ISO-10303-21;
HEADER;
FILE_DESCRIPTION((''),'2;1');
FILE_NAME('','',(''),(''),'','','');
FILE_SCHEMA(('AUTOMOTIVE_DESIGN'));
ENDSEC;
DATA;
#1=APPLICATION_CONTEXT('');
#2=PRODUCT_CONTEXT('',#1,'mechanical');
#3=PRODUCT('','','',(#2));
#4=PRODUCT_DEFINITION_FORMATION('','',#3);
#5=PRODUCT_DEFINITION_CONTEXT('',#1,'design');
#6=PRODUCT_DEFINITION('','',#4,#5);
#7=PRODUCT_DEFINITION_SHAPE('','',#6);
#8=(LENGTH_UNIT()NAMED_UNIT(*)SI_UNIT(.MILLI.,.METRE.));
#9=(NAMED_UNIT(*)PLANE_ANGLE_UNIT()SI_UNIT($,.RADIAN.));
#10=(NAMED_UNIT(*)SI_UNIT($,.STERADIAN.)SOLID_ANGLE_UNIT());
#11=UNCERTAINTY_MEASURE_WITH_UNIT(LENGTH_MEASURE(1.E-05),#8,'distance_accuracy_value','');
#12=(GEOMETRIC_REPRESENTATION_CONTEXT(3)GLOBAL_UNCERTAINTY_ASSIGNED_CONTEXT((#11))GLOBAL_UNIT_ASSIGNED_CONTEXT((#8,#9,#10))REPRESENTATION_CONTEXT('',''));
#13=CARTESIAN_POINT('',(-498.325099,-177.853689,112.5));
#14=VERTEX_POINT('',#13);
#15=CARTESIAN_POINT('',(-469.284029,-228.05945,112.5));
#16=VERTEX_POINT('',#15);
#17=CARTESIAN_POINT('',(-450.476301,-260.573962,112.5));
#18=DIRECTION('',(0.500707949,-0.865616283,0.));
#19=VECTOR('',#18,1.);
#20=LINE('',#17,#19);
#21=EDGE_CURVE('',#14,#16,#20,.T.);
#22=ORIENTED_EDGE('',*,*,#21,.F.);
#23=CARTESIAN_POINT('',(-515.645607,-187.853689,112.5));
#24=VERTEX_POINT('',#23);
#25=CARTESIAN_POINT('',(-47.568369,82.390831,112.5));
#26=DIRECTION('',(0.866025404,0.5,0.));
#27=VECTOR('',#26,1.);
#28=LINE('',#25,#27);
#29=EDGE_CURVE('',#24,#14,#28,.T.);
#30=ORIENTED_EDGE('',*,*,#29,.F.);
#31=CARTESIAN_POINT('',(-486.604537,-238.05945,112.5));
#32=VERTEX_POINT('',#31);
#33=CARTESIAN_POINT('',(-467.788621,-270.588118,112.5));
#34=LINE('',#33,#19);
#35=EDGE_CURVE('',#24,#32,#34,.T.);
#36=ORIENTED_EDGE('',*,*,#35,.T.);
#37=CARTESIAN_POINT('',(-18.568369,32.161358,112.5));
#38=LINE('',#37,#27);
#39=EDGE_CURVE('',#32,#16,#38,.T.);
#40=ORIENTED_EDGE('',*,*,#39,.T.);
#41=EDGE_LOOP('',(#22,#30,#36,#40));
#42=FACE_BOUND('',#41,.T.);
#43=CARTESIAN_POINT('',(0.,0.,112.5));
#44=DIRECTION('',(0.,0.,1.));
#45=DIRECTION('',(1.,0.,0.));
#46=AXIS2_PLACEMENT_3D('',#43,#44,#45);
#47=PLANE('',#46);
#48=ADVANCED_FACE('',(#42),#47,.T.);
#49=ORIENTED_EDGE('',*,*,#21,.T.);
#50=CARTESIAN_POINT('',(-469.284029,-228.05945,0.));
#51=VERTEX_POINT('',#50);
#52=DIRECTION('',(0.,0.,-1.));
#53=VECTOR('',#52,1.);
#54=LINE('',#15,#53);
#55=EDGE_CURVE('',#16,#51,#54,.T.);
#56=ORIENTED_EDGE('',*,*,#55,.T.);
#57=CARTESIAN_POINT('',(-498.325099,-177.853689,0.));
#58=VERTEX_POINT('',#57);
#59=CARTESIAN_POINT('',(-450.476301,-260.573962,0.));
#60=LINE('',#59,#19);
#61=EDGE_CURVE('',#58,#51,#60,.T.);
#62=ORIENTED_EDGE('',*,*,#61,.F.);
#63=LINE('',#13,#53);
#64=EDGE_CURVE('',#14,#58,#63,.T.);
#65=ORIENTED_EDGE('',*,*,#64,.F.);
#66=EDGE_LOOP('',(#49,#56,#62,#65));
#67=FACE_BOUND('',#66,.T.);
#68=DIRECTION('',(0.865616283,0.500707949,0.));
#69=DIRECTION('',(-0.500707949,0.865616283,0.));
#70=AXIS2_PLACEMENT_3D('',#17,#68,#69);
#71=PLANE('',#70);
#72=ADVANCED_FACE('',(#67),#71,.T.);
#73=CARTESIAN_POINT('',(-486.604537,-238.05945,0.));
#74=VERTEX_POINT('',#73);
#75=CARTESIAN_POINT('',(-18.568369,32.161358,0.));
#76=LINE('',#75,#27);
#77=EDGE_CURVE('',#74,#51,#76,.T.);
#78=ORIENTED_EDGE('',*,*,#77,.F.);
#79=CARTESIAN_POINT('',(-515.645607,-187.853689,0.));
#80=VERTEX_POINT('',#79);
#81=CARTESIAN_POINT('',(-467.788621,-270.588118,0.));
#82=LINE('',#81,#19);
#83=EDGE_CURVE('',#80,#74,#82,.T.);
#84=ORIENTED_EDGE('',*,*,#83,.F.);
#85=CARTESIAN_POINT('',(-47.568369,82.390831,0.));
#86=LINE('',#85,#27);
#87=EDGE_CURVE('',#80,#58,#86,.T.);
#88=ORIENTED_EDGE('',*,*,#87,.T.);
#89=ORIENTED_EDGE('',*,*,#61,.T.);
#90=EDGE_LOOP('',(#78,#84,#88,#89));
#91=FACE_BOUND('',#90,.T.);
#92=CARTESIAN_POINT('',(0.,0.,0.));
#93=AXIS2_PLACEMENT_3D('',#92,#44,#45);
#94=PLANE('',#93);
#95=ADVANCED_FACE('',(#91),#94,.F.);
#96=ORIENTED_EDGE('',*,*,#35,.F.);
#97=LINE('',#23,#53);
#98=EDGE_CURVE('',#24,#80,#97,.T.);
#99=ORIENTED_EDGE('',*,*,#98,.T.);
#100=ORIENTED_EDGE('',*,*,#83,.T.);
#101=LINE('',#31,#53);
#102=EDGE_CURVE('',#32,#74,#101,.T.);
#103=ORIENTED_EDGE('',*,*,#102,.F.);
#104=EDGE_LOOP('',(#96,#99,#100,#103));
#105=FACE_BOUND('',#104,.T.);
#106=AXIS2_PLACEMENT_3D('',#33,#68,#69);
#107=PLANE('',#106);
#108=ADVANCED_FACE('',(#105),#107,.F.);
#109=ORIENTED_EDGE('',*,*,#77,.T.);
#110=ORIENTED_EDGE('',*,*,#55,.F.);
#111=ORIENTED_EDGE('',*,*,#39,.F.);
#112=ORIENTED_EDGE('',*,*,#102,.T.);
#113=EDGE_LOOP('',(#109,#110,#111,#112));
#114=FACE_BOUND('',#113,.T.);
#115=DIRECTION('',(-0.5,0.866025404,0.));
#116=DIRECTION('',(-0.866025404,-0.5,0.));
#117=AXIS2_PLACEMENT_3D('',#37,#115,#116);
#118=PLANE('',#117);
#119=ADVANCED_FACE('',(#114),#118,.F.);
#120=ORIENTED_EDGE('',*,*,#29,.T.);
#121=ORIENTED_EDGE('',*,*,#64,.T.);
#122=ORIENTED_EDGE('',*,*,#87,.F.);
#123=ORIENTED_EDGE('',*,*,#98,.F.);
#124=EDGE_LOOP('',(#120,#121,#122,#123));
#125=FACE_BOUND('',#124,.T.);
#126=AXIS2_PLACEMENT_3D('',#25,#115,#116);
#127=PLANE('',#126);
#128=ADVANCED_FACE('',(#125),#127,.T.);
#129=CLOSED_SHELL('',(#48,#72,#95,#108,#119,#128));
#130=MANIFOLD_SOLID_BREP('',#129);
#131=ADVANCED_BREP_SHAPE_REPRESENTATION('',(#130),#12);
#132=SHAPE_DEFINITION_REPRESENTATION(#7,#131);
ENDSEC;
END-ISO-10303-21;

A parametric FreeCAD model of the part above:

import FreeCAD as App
import Part
import Sketcher

V = App.Vector
Q = App.Units.Quantity


def add_polygon(sketch, points):
    """Adds a closed chain of lines whose ends are joined by coincident constraints."""
    first, n = sketch.GeometryCount, len(points)
    for a, b in zip(points, points[1:] + points[:1]):
        sketch.addGeometry(Part.LineSegment(App.Vector(*a, 0), App.Vector(*b, 0)), False)
    for i in range(n):
        sketch.addConstraint(Sketcher.Constraint("Coincident", first + i, 2, first + (i + 1) % n, 1))

doc = App.newDocument("Part")
body = doc.addObject("PartDesign::Body", "Body")

# Sketch on XY plane
sketch1 = body.newObject("Sketcher::SketchObject", "Sketch")
sketch1.AttachmentSupport = (doc.getObject("XY_Plane"), [""])
sketch1.MapMode = "FlatFace"
add_polygon(sketch1, [(-469.284029, -228.05945), (-498.325099, -177.853689), (-515.645607, -187.853689), (-486.604537, -238.05945)])  # lines 0-3
sketch1.addConstraint([
    Sketcher.Constraint("Parallel", 0, 2),
    Sketcher.Constraint("Parallel", 1, 3),
    Sketcher.Constraint("Angle", 1, Q("-150 deg")),
    Sketcher.Constraint("Distance", 1, Q("20 mm")),
    Sketcher.Constraint("DistanceX", 0, 2, -1, 1, Q("498.325099 mm")),
    Sketcher.Constraint("Distance", 0, Q("58.000019 mm")),
    Sketcher.Constraint("DistanceY", 0, 2, -1, 1, Q("177.853689 mm")),
    Sketcher.Constraint("DistanceY", 2, 2, -1, 1, Q("238.05945 mm")),
])
pad1 = body.newObject("PartDesign::Pad", "Pad")
pad1.Profile = sketch1
pad1.Length = 112.5

doc.recompute()
